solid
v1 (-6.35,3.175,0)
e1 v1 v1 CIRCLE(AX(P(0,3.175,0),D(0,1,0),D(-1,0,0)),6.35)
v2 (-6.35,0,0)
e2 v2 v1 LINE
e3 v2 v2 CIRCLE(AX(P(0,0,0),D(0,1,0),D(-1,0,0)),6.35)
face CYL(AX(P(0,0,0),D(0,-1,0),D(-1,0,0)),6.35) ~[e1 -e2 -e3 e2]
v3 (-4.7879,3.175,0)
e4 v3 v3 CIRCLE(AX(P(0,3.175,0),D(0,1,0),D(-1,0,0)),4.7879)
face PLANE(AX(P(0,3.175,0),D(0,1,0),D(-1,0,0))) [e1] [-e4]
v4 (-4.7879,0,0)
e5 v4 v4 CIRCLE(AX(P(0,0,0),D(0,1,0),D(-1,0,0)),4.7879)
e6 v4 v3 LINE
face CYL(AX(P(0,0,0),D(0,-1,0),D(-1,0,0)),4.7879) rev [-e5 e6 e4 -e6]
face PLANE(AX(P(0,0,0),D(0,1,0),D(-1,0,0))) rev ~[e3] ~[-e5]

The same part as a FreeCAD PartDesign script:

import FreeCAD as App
import Part
import Sketcher
Q = App.Units.Quantity

doc = App.newDocument("Part")
body = doc.addObject("PartDesign::Body", "Body")

sketch1 = body.newObject("Sketcher::SketchObject", "Sketch")
sketch1.AttachmentSupport = (doc.getObject("XZ_Plane"), [""])
sketch1.MapMode = "FlatFace"
sketch1.addGeometry([
    Part.Circle(App.Vector(0, 0, 0), App.Vector(0, 0, 1), 6.3),
    Part.Circle(App.Vector(0, 0, 0), App.Vector(0, 0, 1), 4.8),
], False)
sketch1.addConstraint([
    Sketcher.Constraint("Coincident", 0, 3, -1, 1),
    Sketcher.Constraint("Coincident", 1, 3, -1, 1),
    Sketcher.Constraint("Diameter", 0, Q("0.5 in")),
    Sketcher.Constraint("Diameter", 1, Q("0.377 in")),
])
pad1 = body.newObject("PartDesign::Pad", "Pad")
pad1.Profile = sketch1
pad1.Length = Q("0.125 in")
pad1.Reversed = True

doc.recompute()
